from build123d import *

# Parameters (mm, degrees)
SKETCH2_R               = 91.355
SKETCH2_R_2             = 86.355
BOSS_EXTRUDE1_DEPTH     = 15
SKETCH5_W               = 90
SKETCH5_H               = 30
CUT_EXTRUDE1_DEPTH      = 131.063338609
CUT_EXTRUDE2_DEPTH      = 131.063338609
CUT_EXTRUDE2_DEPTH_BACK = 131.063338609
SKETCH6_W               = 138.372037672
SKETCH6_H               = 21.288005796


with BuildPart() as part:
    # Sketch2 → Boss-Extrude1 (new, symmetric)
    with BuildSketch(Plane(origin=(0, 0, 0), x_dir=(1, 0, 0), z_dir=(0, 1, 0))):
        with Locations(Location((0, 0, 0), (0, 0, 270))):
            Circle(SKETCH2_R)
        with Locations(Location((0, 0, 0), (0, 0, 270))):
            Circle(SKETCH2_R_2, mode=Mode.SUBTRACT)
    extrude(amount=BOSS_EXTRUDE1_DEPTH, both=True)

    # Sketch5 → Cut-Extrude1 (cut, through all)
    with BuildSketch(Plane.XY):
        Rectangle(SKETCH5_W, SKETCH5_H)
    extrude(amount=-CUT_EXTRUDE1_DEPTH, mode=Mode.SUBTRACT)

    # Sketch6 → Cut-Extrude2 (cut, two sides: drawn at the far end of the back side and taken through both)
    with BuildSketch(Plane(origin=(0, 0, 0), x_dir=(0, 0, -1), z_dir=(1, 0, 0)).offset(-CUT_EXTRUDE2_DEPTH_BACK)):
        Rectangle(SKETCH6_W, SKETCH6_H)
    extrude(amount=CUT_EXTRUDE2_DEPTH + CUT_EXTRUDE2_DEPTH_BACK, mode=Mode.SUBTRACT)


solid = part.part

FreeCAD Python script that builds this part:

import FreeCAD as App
import Part
import Sketcher
from FreeCAD import Vector

doc = App.newDocument("Part")
params = doc.addObject("Spreadsheet::Sheet", "Params")
for row, (alias, value) in enumerate([
    ("sketch1_diameter", "182.71 mm"),
    ("sketch1_diameter2", "172.71 mm"),
    ("pad1_length", "30 mm"),
    ("sketch2_width", "90 mm"),
    ("sketch2_height", "30 mm"),
], start=1):
    params.set(f"A{row}", alias)
    params.set(f"B{row}", "=" + value)
    params.setAlias(f"B{row}", alias)

body = doc.addObject("PartDesign::Body", "Body")

# Sketch on XZ plane
sketch1 = body.newObject("Sketcher::SketchObject", "Sketch")
sketch1.AttachmentSupport = (doc.getObject("XZ_Plane"), [""])
sketch1.MapMode = "FlatFace"
sketch1.addGeometry([
    Part.Circle(Vector(0, 0, 0), Vector(0, 0, 1), 91),
    Part.Circle(Vector(0, 0, 0), Vector(0, 0, 1), 86),
], False)
sketch1.addConstraint([
    Sketcher.Constraint("Coincident", 0, 3, -1, 1),
    Sketcher.Constraint("Coincident", 1, 3, -1, 1),
    Sketcher.Constraint("Diameter", 0, 182.71),
    Sketcher.Constraint("Diameter", 1, 172.71),
])
sketch1.setExpression("Constraints[2]", "Params.sketch1_diameter")
sketch1.setExpression("Constraints[3]", "Params.sketch1_diameter2")
pad1 = body.newObject("PartDesign::Pad", "Pad")
pad1.Profile = sketch1
pad1.setExpression("Length", "Params.pad1_length")
pad1.Midplane = True

# Sketch on XY plane
sketch2 = body.newObject("Sketcher::SketchObject", "Sketch001")
sketch2.AttachmentSupport = (doc.getObject("XY_Plane"), [""])
sketch2.MapMode = "FlatFace"
sketch2.addGeometry([
    Part.LineSegment(Vector(-45, 15, 0), Vector(-45, -15, 0)),
    Part.LineSegment(Vector(-45, -15, 0), Vector(45, -15, 0)),
    Part.LineSegment(Vector(45, -15, 0), Vector(45, 15, 0)),
    Part.LineSegment(Vector(45, 15, 0), Vector(-45, 15, 0)),
], False)
sketch2.addConstraint([
    Sketcher.Constraint("Coincident", 0, 2, 1, 1),
    Sketcher.Constraint("Coincident", 1, 2, 2, 1),
    Sketcher.Constraint("Coincident", 2, 2, 3, 1),
    Sketcher.Constraint("Coincident", 3, 2, 0, 1),
    Sketcher.Constraint("Vertical", 0),
    Sketcher.Constraint("Horizontal", 1),
    Sketcher.Constraint("Vertical", 2),
    Sketcher.Constraint("Horizontal", 3),
    Sketcher.Constraint("Symmetric", 0, 2, 2, 2, -1, 1),
    Sketcher.Constraint("DistanceX", 1, 1, 1, 2, 90.0),
    Sketcher.Constraint("DistanceY", 0, 2, 0, 1, 30.0),
])
sketch2.setExpression("Constraints[9]", "Params.sketch2_width")
sketch2.setExpression("Constraints[10]", "Params.sketch2_height")
pocket1 = body.newObject("PartDesign::Pocket", "Pocket")
pocket1.Profile = sketch2
pocket1.Type = "ThroughAll"

# Sketch on YZ plane
sketch3 = body.newObject("Sketcher::SketchObject", "Sketch002")
sketch3.AttachmentSupport = (doc.getObject("YZ_Plane"), [""])
sketch3.MapMode = "FlatFace"
sketch3.addGeometry([
    Part.LineSegment(Vector(11, 69, 0), Vector(-11, 69, 0)),
    Part.LineSegment(Vector(-11, 69, 0), Vector(-11, -69, 0)),
    Part.LineSegment(Vector(-11, -69, 0), Vector(11, -69, 0)),
    Part.LineSegment(Vector(11, -69, 0), Vector(11, 69, 0)),
], False)
sketch3.addConstraint([
    Sketcher.Constraint("Coincident", 0, 2, 1, 1),
    Sketcher.Constraint("Coincident", 1, 2, 2, 1),
    Sketcher.Constraint("Coincident", 2, 2, 3, 1),
    Sketcher.Constraint("Coincident", 3, 2, 0, 1),
    Sketcher.Constraint("Horizontal", 0),
    Sketcher.Constraint("Vertical", 1),
    Sketcher.Constraint("Horizontal", 2),
    Sketcher.Constraint("Vertical", 3),
    Sketcher.Constraint("Symmetric", 0, 2, 2, 2, -1, 1),
    Sketcher.Constraint("DistanceX", 0, 2, 0, 1, 21.288006),
    Sketcher.Constraint("DistanceY", 1, 2, 1, 1, 138.372038),
])
pocket2 = body.newObject("PartDesign::Pocket", "Pocket001")
pocket2.Profile = sketch3
pocket2.Type = "ThroughAll"
pocket2.Midplane = True

doc.recompute()
